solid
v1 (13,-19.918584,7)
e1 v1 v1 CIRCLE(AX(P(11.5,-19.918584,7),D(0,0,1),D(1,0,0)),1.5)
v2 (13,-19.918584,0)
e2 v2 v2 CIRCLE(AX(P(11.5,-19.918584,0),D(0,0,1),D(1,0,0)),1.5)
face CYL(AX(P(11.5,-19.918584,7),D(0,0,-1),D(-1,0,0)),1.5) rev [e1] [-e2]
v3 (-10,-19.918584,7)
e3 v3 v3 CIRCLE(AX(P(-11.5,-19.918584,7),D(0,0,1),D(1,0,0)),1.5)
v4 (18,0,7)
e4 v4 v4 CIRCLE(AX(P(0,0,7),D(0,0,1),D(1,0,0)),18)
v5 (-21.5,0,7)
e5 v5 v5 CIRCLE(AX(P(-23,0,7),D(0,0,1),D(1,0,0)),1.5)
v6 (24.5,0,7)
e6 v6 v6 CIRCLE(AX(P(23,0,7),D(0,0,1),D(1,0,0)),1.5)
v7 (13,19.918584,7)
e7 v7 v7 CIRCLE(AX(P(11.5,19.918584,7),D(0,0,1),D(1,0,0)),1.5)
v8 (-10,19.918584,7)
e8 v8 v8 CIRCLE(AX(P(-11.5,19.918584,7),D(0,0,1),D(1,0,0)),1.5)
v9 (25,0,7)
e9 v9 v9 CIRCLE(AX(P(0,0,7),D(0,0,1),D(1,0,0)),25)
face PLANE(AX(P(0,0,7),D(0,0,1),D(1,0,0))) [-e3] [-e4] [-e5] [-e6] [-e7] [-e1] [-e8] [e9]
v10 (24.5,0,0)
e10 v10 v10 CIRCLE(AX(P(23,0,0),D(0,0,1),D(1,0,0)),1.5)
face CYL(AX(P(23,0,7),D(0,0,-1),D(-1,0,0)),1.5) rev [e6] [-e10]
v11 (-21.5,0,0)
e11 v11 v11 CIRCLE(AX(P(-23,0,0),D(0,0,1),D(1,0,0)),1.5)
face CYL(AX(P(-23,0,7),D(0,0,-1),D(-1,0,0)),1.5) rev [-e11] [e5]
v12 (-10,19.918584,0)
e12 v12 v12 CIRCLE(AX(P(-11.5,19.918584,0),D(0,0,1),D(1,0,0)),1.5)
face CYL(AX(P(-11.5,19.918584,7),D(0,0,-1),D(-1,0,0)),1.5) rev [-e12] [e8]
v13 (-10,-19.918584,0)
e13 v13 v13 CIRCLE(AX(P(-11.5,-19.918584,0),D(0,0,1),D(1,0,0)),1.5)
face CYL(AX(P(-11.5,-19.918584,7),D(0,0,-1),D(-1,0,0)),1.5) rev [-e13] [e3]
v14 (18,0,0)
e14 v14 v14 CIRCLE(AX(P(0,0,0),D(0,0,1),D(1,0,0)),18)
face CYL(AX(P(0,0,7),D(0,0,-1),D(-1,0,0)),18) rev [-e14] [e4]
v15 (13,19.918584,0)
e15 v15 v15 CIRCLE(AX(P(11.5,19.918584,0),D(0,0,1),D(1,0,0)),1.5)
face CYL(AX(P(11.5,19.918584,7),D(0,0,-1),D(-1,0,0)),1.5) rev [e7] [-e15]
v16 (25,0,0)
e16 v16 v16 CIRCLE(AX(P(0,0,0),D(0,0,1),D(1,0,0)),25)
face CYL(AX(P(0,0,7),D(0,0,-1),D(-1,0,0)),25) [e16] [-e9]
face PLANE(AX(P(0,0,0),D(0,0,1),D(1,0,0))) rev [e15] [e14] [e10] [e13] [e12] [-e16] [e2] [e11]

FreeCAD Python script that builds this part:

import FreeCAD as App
import Part
import Sketcher

V = App.Vector

doc = App.newDocument("Part")
body = doc.addObject("PartDesign::Body", "Body")

# Sketch on XY plane
sketch1 = body.newObject("Sketcher::SketchObject", "Sketch")
sketch1.AttachmentSupport = (doc.getObject("XY_Plane"), [""])
sketch1.MapMode = "FlatFace"
sketch1.addGeometry(Part.Circle(V(0, 0, 0), V(0, 0, 1), 25), False)
sketch1.addGeometry(Part.Circle(V(-11.5, -19.918584, 0), V(0, 0, 1), 1.5), False)
sketch1.addGeometry(Part.Circle(V(-23, 0, 0), V(0, 0, 1), 1.5), False)
sketch1.addGeometry(Part.Circle(V(0, 0, 0), V(0, 0, 1), 18), False)
sketch1.addGeometry(Part.Circle(V(11.5, -19.918584, 0), V(0, 0, 1), 1.5), False)
sketch1.addGeometry(Part.Circle(V(23, 0, 0), V(0, 0, 1), 1.5), False)
sketch1.addGeometry(Part.Circle(V(-11.5, 19.918584, 0), V(0, 0, 1), 1.5), False)
sketch1.addGeometry(Part.Circle(V(11.5, 19.918584, 0), V(0, 0, 1), 1.5), False)
sketch1.addConstraint(Sketcher.Constraint("Coincident", 0, 3, -1, 1))
sketch1.addConstraint(Sketcher.Constraint("Coincident", 3, 3, -1, 1))
sketch1.addConstraint(Sketcher.Constraint("Equal", 1, 2))
sketch1.addConstraint(Sketcher.Constraint("Equal", 2, 4))
sketch1.addConstraint(Sketcher.Constraint("Equal", 4, 5))
sketch1.addConstraint(Sketcher.Constraint("Equal", 5, 6))
sketch1.addConstraint(Sketcher.Constraint("Equal", 6, 7))
sketch1.addConstraint(Sketcher.Constraint("Symmetric", 2, 3, 5, 3, -1, 1))
sketch1.addConstraint(Sketcher.Constraint("Symmetric", 4, 3, 6, 3, -1, 1))
sketch1.addConstraint(Sketcher.Constraint("Symmetric", 1, 3, 7, 3, -1, 1))
sketch1.addConstraint(Sketcher.Constraint("Symmetric", 1, 3, 4, 3, -2))
sketch1.addConstraint(Sketcher.Constraint("PointOnObject", 2, 3, -1))
sketch1.addConstraint(Sketcher.Constraint("Diameter", 0, 50.0))
sketch1.addConstraint(Sketcher.Constraint("Diameter", 1, 3.0))
sketch1.addConstraint(Sketcher.Constraint("Diameter", 3, 36.0))
sketch1.addConstraint(Sketcher.Constraint("DistanceX", 2, 3, -1, 1, 23.0))
sketch1.addConstraint(Sketcher.Constraint("DistanceX", 1, 3, 4, 3, 23.0))
sketch1.addConstraint(Sketcher.Constraint("DistanceY", 1, 3, 6, 3, 39.837169))
pad1 = body.newObject("PartDesign::Pad", "Pad")
pad1.Profile = sketch1
pad1.Length = 7

doc.recompute()
